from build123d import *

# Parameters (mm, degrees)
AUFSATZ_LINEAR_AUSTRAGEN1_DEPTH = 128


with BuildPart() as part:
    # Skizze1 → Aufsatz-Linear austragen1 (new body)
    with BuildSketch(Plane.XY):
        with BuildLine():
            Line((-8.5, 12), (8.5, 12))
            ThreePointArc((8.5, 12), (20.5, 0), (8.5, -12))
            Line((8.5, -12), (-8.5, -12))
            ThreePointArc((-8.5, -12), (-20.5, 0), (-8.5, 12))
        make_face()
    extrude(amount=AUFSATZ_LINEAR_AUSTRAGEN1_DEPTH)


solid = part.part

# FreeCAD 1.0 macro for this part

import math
import FreeCAD as App
import Part
import Sketcher

V = App.Vector
Q = App.Units.Quantity

doc = App.newDocument("Part")
body = doc.addObject("PartDesign::Body", "Body")

sketch1 = body.newObject("Sketcher::SketchObject", "Sketch")
sketch1.AttachmentSupport = (doc.getObject("XY_Plane"), [""])
sketch1.MapMode = "FlatFace"
sketch1.addGeometry(Part.LineSegment(V(8.5, 12, 0), V(-8.5, 12, 0)), False)
sketch1.addGeometry(Part.ArcOfCircle(Part.Circle(V(-8.5, 0, 0), V(0, 0, 1), 12), math.radians(90), math.radians(270)), False)
sketch1.addGeometry(Part.LineSegment(V(-8.5, -12, 0), V(8.5, -12, 0)), False)
sketch1.addGeometry(Part.ArcOfCircle(Part.Circle(V(8.5, 0, 0), V(0, 0, 1), 12), math.radians(-90), math.radians(90)), False)
sketch1.addConstraint(Sketcher.Constraint("Tangent", 0, 2, 1, 1))
sketch1.addConstraint(Sketcher.Constraint("Tangent", 1, 2, 2, 1))
sketch1.addConstraint(Sketcher.Constraint("Tangent", 2, 2, 3, 1))
sketch1.addConstraint(Sketcher.Constraint("Tangent", 3, 2, 0, 1))
sketch1.addConstraint(Sketcher.Constraint("Horizontal", 0))
sketch1.addConstraint(Sketcher.Constraint("Horizontal", 2))
sketch1.addConstraint(Sketcher.Constraint("Symmetric", 1, 3, 3, 3, -1, 1))
sketch1.addConstraint(Sketcher.Constraint("Radius", 1, Q("12 mm")))
sketch1.addConstraint(Sketcher.Constraint("DistanceX", 0, 2, 0, 1, Q("17 mm")))
pad1 = body.newObject("PartDesign::Pad", "Pad")
pad1.Profile = sketch1
pad1.Length = 128

doc.recompute()
